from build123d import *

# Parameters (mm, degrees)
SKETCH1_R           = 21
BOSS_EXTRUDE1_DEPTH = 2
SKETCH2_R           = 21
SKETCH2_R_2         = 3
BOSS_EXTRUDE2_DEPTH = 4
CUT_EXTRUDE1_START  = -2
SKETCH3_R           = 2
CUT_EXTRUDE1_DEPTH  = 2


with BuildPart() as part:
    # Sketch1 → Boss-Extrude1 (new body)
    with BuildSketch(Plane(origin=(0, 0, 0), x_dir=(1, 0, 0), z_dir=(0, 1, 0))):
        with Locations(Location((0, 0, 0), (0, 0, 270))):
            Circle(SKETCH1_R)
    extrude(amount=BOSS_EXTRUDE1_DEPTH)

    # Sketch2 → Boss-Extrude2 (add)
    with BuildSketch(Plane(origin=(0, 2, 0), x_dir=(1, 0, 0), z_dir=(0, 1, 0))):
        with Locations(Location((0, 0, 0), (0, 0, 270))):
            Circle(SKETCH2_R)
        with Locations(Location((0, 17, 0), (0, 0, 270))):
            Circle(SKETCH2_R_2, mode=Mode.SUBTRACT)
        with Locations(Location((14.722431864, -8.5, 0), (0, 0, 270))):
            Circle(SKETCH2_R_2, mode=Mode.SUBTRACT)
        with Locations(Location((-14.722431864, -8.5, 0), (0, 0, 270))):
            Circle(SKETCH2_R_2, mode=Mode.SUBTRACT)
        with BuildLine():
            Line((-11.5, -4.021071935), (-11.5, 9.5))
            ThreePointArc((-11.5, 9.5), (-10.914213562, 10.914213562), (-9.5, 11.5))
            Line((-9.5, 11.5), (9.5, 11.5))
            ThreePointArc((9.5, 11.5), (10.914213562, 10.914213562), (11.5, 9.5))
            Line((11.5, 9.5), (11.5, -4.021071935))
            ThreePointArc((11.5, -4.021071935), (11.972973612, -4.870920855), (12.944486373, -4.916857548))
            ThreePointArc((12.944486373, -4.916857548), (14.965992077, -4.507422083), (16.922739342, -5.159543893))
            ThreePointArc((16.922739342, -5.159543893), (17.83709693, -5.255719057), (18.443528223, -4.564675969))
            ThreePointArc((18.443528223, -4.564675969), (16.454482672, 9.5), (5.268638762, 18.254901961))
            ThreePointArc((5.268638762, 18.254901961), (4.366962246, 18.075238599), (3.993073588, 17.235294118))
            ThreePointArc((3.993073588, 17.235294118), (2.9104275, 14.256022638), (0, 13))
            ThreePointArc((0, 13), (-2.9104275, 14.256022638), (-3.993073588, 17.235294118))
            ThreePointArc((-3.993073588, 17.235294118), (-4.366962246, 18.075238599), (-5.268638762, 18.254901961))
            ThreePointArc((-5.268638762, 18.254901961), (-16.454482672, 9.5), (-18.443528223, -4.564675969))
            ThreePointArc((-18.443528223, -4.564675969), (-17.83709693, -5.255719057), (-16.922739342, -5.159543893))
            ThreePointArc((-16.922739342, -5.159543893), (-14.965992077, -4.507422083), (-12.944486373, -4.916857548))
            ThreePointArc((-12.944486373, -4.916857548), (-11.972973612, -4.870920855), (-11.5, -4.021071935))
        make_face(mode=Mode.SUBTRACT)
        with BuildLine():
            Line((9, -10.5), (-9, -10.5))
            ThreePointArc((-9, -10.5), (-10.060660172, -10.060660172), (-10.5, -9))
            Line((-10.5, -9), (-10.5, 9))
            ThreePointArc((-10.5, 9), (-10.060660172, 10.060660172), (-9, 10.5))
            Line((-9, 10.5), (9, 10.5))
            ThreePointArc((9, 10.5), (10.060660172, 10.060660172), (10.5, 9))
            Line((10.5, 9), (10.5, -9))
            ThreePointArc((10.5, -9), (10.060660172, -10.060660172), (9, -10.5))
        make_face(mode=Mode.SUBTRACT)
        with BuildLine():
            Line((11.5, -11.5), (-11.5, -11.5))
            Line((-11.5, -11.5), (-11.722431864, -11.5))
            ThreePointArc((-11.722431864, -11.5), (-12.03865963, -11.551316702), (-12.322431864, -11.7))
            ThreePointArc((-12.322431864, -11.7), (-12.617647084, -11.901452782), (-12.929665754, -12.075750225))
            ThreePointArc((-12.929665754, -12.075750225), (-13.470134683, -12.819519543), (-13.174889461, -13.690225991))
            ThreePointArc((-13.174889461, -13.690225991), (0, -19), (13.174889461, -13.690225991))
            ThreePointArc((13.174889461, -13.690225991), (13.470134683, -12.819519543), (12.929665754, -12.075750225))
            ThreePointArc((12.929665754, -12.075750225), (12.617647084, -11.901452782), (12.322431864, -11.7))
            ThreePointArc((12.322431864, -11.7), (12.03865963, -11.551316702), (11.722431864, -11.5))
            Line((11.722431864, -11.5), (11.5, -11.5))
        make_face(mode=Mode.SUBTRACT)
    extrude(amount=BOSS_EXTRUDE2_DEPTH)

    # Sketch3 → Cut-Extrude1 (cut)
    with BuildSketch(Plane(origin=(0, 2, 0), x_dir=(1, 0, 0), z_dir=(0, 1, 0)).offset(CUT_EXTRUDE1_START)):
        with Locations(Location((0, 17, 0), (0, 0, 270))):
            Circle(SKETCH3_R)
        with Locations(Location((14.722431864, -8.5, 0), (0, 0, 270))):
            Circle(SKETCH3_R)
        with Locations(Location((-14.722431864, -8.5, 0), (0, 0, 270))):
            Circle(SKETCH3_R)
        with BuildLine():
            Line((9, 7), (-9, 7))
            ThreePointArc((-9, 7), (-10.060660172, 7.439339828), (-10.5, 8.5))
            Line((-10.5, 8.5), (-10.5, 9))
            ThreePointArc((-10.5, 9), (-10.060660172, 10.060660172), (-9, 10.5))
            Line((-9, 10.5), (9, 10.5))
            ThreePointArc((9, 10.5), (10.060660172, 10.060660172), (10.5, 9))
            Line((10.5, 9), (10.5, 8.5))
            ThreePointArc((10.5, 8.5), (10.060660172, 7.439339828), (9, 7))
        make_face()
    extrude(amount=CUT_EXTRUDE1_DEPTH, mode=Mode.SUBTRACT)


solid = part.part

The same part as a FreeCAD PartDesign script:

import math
import FreeCAD as App
import Part
import Sketcher
Q = App.Units.Quantity

doc = App.newDocument("Part")
body = doc.addObject("PartDesign::Body", "Body")

# Sketch on XZ plane
sketch1 = doc.addObject("Sketcher::SketchObject", "Sketch")
body.addObject(sketch1)
sketch1.AttachmentSupport = (doc.XZ_Plane, [""])
sketch1.MapMode = "FlatFace"
sketch1.addGeometry(Part.Circle(App.Vector(0, 0, 0), App.Vector(0, 0, 1), 21), False)
sketch1.addConstraint(Sketcher.Constraint("Coincident", 0, 3, -1, 1))
sketch1.addConstraint(Sketcher.Constraint("Diameter", 0, Q("42 mm")))
pad1 = doc.addObject("PartDesign::Pad", "Pad")
body.addObject(pad1)
pad1.Profile = sketch1
pad1.Length = 2
pad1.Reversed = True

# Sketch on XZ plane
sketch2 = doc.addObject("Sketcher::SketchObject", "Sketch001")
body.addObject(sketch2)
sketch2.AttachmentSupport = (doc.XZ_Plane, [""])
sketch2.MapMode = "FlatFace"
sketch2.AttachmentOffset = App.Placement(App.Vector(0, 0, -2), App.Rotation())
sketch2.addGeometry(Part.Circle(App.Vector(0, 0, 0), App.Vector(0, 0, 1), 21), False)
sketch2.addGeometry(Part.Circle(App.Vector(0, -17, 0), App.Vector(0, 0, 1), 3), False)
sketch2.addGeometry(Part.LineSegment(App.Vector(-11.5, -9.5, 0), App.Vector(-11.5, 4, 0)), False)
sketch2.addGeometry(Part.ArcOfCircle(Part.Circle(App.Vector(-12.5, 4, 0), App.Vector(0, 0, 1), 1), math.radians(0), math.radians(116)), False)
sketch2.addGeometry(Part.ArcOfCircle(Part.Circle(App.Vector(-14.7, 8.5, 0), App.Vector(0, 0, 1), 4), math.radians(-123), math.radians(-64)), False)
sketch2.addGeometry(Part.ArcOfCircle(Part.Circle(App.Vector(-17.5, 4.3, 0), App.Vector(0, 0, 1), 1), math.radians(57), math.radians(166)), False)
sketch2.addGeometry(Part.ArcOfCircle(Part.Circle(App.Vector(0, 0, 0), App.Vector(0, 0, 1), 19), math.radians(166), math.radians(254)), False)
sketch2.addGeometry(Part.ArcOfCircle(Part.Circle(App.Vector(-5, -17.3, 0), App.Vector(0, 0, 1), 1), math.radians(-106), math.radians(3)), False)
sketch2.addGeometry(Part.ArcOfCircle(Part.Circle(App.Vector(0, -17, 0), App.Vector(0, 0, 1), 4), math.radians(90), math.radians(183)), False)
sketch2.addGeometry(Part.ArcOfCircle(Part.Circle(App.Vector(0, -17, 0), App.Vector(0, 0, 1), 4), math.radians(-3), math.radians(90)), False)
sketch2.addGeometry(Part.ArcOfCircle(Part.Circle(App.Vector(5, -17.3, 0), App.Vector(0, 0, 1), 1), math.radians(177), math.radians(286)), False)
sketch2.addGeometry(Part.ArcOfCircle(Part.Circle(App.Vector(0, 0, 0), App.Vector(0, 0, 1), 19), math.radians(-74), math.radians(14)), False)
sketch2.addGeometry(Part.ArcOfCircle(Part.Circle(App.Vector(17.5, 4.3, 0), App.Vector(0, 0, 1), 1), math.radians(14), math.radians(123)), False)
sketch2.addGeometry(Part.ArcOfCircle(Part.Circle(App.Vector(14.7, 8.5, 0), App.Vector(0, 0, 1), 4), math.radians(-116), math.radians(-57)), False)
sketch2.addGeometry(Part.ArcOfCircle(Part.Circle(App.Vector(12.5, 4, 0), App.Vector(0, 0, 1), 1), math.radians(64), math.radians(180)), False)
sketch2.addGeometry(Part.LineSegment(App.Vector(11.5, 4, 0), App.Vector(11.5, -9.5, 0)), False)
sketch2.addGeometry(Part.ArcOfCircle(Part.Circle(App.Vector(9.5, -9.5, 0), App.Vector(0, 0, 1), 2), math.radians(-90), math.radians(0)), False)
sketch2.addGeometry(Part.LineSegment(App.Vector(9.5, -11.5, 0), App.Vector(-9.5, -11.5, 0)), False)
sketch2.addGeometry(Part.ArcOfCircle(Part.Circle(App.Vector(-9.5, -9.5, 0), App.Vector(0, 0, 1), 2), math.radians(-180), math.radians(-90)), False)
sketch2.addGeometry(Part.Circle(App.Vector(-14.7, 8.5, 0), App.Vector(0, 0, 1), 3), False)
sketch2.addGeometry(Part.ArcOfCircle(Part.Circle(App.Vector(9, 9, 0), App.Vector(0, 0, 1), 1.5), math.radians(0), math.radians(90)), False)
sketch2.addGeometry(Part.LineSegment(App.Vector(9, 10.5, 0), App.Vector(-9, 10.5, 0)), False)
sketch2.addGeometry(Part.ArcOfCircle(Part.Circle(App.Vector(-9, 9, 0), App.Vector(0, 0, 1), 1.5), math.radians(90), math.radians(180)), False)
sketch2.addGeometry(Part.LineSegment(App.Vector(-10.5, 9, 0), App.Vector(-10.5, -9, 0)), False)
sketch2.addGeometry(Part.ArcOfCircle(Part.Circle(App.Vector(-9, -9, 0), App.Vector(0, 0, 1), 1.5), math.radians(180), math.radians(270)), False)
sketch2.addGeometry(Part.LineSegment(App.Vector(-9, -10.5, 0), App.Vector(9, -10.5, 0)), False)
sketch2.addGeometry(Part.ArcOfCircle(Part.Circle(App.Vector(9, -9, 0), App.Vector(0, 0, 1), 1.5), math.radians(-90), math.radians(0)), False)
sketch2.addGeometry(Part.LineSegment(App.Vector(10.5, -9, 0), App.Vector(10.5, 9, 0)), False)
sketch2.addGeometry(Part.ArcOfCircle(Part.Circle(App.Vector(-11.7, 12.5, 0), App.Vector(0, 0, 1), 1), math.radians(-127), math.radians(-90)), False)
sketch2.addGeometry(Part.LineSegment(App.Vector(-11.7, 11.5, 0), App.Vector(11.7, 11.5, 0)), False)
sketch2.addGeometry(Part.ArcOfCircle(Part.Circle(App.Vector(11.7, 12.5, 0), App.Vector(0, 0, 1), 1), math.radians(-90), math.radians(-53)), False)
sketch2.addGeometry(Part.ArcOfCircle(Part.Circle(App.Vector(14.7, 8.5, 0), App.Vector(0, 0, 1), 4), math.radians(116.63), math.radians(126.87)), False)
sketch2.addGeometry(Part.ArcOfCircle(Part.Circle(App.Vector(12.5, 13, 0), App.Vector(0, 0, 1), 1), math.radians(-63), math.radians(46)), False)
sketch2.addGeometry(Part.ArcOfCircle(Part.Circle(App.Vector(0, 0, 0), App.Vector(0, 0, 1), 19), math.radians(46), math.radians(134)), False)
sketch2.addGeometry(Part.ArcOfCircle(Part.Circle(App.Vector(-12.5, 13, 0), App.Vector(0, 0, 1), 1), math.radians(134), math.radians(243)), False)
sketch2.addGeometry(Part.ArcOfCircle(Part.Circle(App.Vector(-14.7, 8.5, 0), App.Vector(0, 0, 1), 4), math.radians(53.13), math.radians(63.37)), False)
sketch2.addGeometry(Part.Circle(App.Vector(14.7, 8.5, 0), App.Vector(0, 0, 1), 3), False)
sketch2.addConstraint(Sketcher.Constraint("Tangent", 2, 2, 3, 1))
sketch2.addConstraint(Sketcher.Constraint("Tangent", 3, 2, 4, 2))
sketch2.addConstraint(Sketcher.Constraint("Tangent", 4, 1, 5, 1))
sketch2.addConstraint(Sketcher.Constraint("Tangent", 5, 2, 6, 1))
sketch2.addConstraint(Sketcher.Constraint("Tangent", 6, 2, 7, 1))
sketch2.addConstraint(Sketcher.Constraint("Tangent", 7, 2, 8, 2))
sketch2.addConstraint(Sketcher.Constraint("Tangent", 8, 1, 9, 2))
sketch2.addConstraint(Sketcher.Constraint("Tangent", 9, 1, 10, 1))
sketch2.addConstraint(Sketcher.Constraint("Tangent", 10, 2, 11, 1))
sketch2.addConstraint(Sketcher.Constraint("Tangent", 11, 2, 12, 1))
sketch2.addConstraint(Sketcher.Constraint("Tangent", 12, 2, 13, 2))
sketch2.addConstraint(Sketcher.Constraint("Tangent", 13, 1, 14, 1))
sketch2.addConstraint(Sketcher.Constraint("Tangent", 14, 2, 15, 1))
sketch2.addConstraint(Sketcher.Constraint("Tangent", 15, 2, 16, 2))
sketch2.addConstraint(Sketcher.Constraint("Tangent", 16, 1, 17, 1))
sketch2.addConstraint(Sketcher.Constraint("Tangent", 17, 2, 18, 2))
sketch2.addConstraint(Sketcher.Constraint("Tangent", 18, 1, 2, 1))
sketch2.addConstraint(Sketcher.Constraint("Tangent", 20, 2, 21, 1))
sketch2.addConstraint(Sketcher.Constraint("Tangent", 21, 2, 22, 1))
sketch2.addConstraint(Sketcher.Constraint("Tangent", 22, 2, 23, 1))
sketch2.addConstraint(Sketcher.Constraint("Tangent", 23, 2, 24, 1))
sketch2.addConstraint(Sketcher.Constraint("Tangent", 24, 2, 25, 1))
sketch2.addConstraint(Sketcher.Constraint("Tangent", 25, 2, 26, 1))
sketch2.addConstraint(Sketcher.Constraint("Tangent", 26, 2, 27, 1))
sketch2.addConstraint(Sketcher.Constraint("Tangent", 27, 2, 20, 1))
sketch2.addConstraint(Sketcher.Constraint("Tangent", 28, 2, 29, 1))
sketch2.addConstraint(Sketcher.Constraint("Tangent", 29, 2, 30, 1))
sketch2.addConstraint(Sketcher.Constraint("Tangent", 30, 2, 31, 2))
sketch2.addConstraint(Sketcher.Constraint("Tangent", 31, 1, 32, 1))
sketch2.addConstraint(Sketcher.Constraint("Tangent", 32, 2, 33, 1))
sketch2.addConstraint(Sketcher.Constraint("Tangent", 33, 2, 34, 1))
sketch2.addConstraint(Sketcher.Constraint("Tangent", 34, 2, 35, 2))
sketch2.addConstraint(Sketcher.Constraint("Tangent", 35, 1, 28, 1))
sketch2.addConstraint(Sketcher.Constraint("Vertical", 2))
sketch2.addConstraint(Sketcher.Constraint("Vertical", 15))
sketch2.addConstraint(Sketcher.Constraint("Horizontal", 17))
sketch2.addConstraint(Sketcher.Constraint("Horizontal", 21))
sketch2.addConstraint(Sketcher.Constraint("Vertical", 23))
sketch2.addConstraint(Sketcher.Constraint("Horizontal", 25))
sketch2.addConstraint(Sketcher.Constraint("Vertical", 27))
sketch2.addConstraint(Sketcher.Constraint("Horizontal", 29))
sketch2.addConstraint(Sketcher.Constraint("Coincident", 0, 3, -1, 1))
sketch2.addConstraint(Sketcher.Constraint("Coincident", 6, 3, -1, 1))
sketch2.addConstraint(Sketcher.Constraint("Coincident", 11, 3, -1, 1))
sketch2.addConstraint(Sketcher.Constraint("Coincident", 33, 3, -1, 1))
sketch2.addConstraint(Sketcher.Constraint("Coincident", 8, 3, 1, 3))
sketch2.addConstraint(Sketcher.Constraint("Coincident", 19, 3, 4, 3))
sketch2.addConstraint(Sketcher.Constraint("Coincident", 31, 3, 13, 3))
sketch2.addConstraint(Sketcher.Constraint("Coincident", 35, 3, 4, 3))
sketch2.addConstraint(Sketcher.Constraint("Coincident", 36, 3, 13, 3))
sketch2.addConstraint(Sketcher.Constraint("Equal", 3, 5))
sketch2.addConstraint(Sketcher.Constraint("Equal", 5, 7))
sketch2.addConstraint(Sketcher.Constraint("Equal", 4, 8))
sketch2.addConstraint(Sketcher.Constraint("Equal", 8, 9))
sketch2.addConstraint(Sketcher.Constraint("Equal", 7, 10))
sketch2.addConstraint(Sketcher.Constraint("Equal", 6, 11))
sketch2.addConstraint(Sketcher.Constraint("Equal", 10, 12))
sketch2.addConstraint(Sketcher.Constraint("Equal", 9, 13))
sketch2.addConstraint(Sketcher.Constraint("Equal", 12, 14))
sketch2.addConstraint(Sketcher.Constraint("Equal", 16, 18))
sketch2.addConstraint(Sketcher.Constraint("Equal", 1, 19))
sketch2.addConstraint(Sketcher.Constraint("Equal", 20, 22))
sketch2.addConstraint(Sketcher.Constraint("Equal", 22, 24))
sketch2.addConstraint(Sketcher.Constraint("Equal", 24, 26))
sketch2.addConstraint(Sketcher.Constraint("Equal", 14, 28))
sketch2.addConstraint(Sketcher.Constraint("Equal", 28, 30))
sketch2.addConstraint(Sketcher.Constraint("Equal", 13, 31))
sketch2.addConstraint(Sketcher.Constraint("Equal", 30, 32))
sketch2.addConstraint(Sketcher.Constraint("Equal", 11, 33))
sketch2.addConstraint(Sketcher.Constraint("Equal", 32, 34))
sketch2.addConstraint(Sketcher.Constraint("Equal", 31, 35))
sketch2.addConstraint(Sketcher.Constraint("Equal", 19, 36))
sketch2.addConstraint(Sketcher.Constraint("Symmetric", 20, 3, 24, 3, -1, 1))
sketch2.addConstraint(Sketcher.Constraint("Symmetric", 4, 3, 13, 3, -2))
sketch2.addConstraint(Sketcher.Constraint("PointOnObject", 1, 3, -2))
sketch2.addConstraint(Sketcher.Constraint("PointOnObject", 8, 1, -2))
sketch2.addConstraint(Sketcher.Constraint("Horizontal", 3, 3, 14, 3))
sketch2.addConstraint(Sketcher.Constraint("Equal", 25, 23))
sketch2.addConstraint(Sketcher.Constraint("Diameter", 0, Q("42 mm")))
sketch2.addConstraint(Sketcher.Constraint("Diameter", 1, Q("6 mm")))
sketch2.addConstraint(Sketcher.Constraint("Radius", 3, Q("1 mm")))
sketch2.addConstraint(Sketcher.Constraint("Radius", 4, Q("4 mm")))
sketch2.addConstraint(Sketcher.Constraint("Radius", 6, Q("19 mm")))
sketch2.addConstraint(Sketcher.Constraint("Radius", 16, Q("2 mm")))
sketch2.addConstraint(Sketcher.Constraint("Radius", 20, Q("1.5 mm")))
sketch2.addConstraint(Sketcher.Constraint("DistanceX", 17, 2, 17, 1, Q("19 mm")))
sketch2.addConstraint(Sketcher.Constraint("DistanceX", 21, 2, 21, 1, Q("18 mm")))
sketch2.addConstraint(Sketcher.Constraint("DistanceY", 1, 3, -1, 1, Q("17 mm")))
sketch2.addConstraint(Sketcher.Constraint("DistanceY", -1, 1, 4, 3, Q("8.5 mm")))
sketch2.addConstraint(Sketcher.Constraint("DistanceY", 16, 3, -1, 1, Q("9.5 mm")))
sketch2.addConstraint(Sketcher.Constraint("DistanceY", -1, 1, 28, 3, Q("12.5 mm")))
sketch2.addConstraint(Sketcher.Constraint("DistanceY", 2, 1, 2, 2, Q("13.521072 mm")))
pad2 = doc.addObject("PartDesign::Pad", "Pad001")
body.addObject(pad2)
pad2.Profile = sketch2
pad2.Length = 4
pad2.Reversed = True

# Sketch on XZ plane
sketch3 = doc.addObject("Sketcher::SketchObject", "Sketch002")
body.addObject(sketch3)
sketch3.AttachmentSupport = (doc.XZ_Plane, [""])
sketch3.MapMode = "FlatFace"
sketch3.addGeometry(Part.Circle(App.Vector(0, -17, 0), App.Vector(0, 0, 1), 2), False)
sketch3.addGeometry(Part.Circle(App.Vector(14.7, 8.5, 0), App.Vector(0, 0, 1), 2), False)
sketch3.addGeometry(Part.Circle(App.Vector(-14.7, 8.5, 0), App.Vector(0, 0, 1), 2), False)
sketch3.addGeometry(Part.LineSegment(App.Vector(-9, -7, 0), App.Vector(9, -7, 0)), False)
sketch3.addGeometry(Part.ArcOfCircle(Part.Circle(App.Vector(9, -8.5, 0), App.Vector(0, 0, 1), 1.5), math.radians(0), math.radians(90)), False)
sketch3.addGeometry(Part.LineSegment(App.Vector(10.5, -8.5, 0), App.Vector(10.5, -9, 0)), False)
sketch3.addGeometry(Part.ArcOfCircle(Part.Circle(App.Vector(9, -9, 0), App.Vector(0, 0, 1), 1.5), math.radians(-90), math.radians(0)), False)
sketch3.addGeometry(Part.LineSegment(App.Vector(9, -10.5, 0), App.Vector(-9, -10.5, 0)), False)
sketch3.addGeometry(Part.ArcOfCircle(Part.Circle(App.Vector(-9, -9, 0), App.Vector(0, 0, 1), 1.5), math.radians(180), math.radians(270)), False)
sketch3.addGeometry(Part.LineSegment(App.Vector(-10.5, -9, 0), App.Vector(-10.5, -8.5, 0)), False)
sketch3.addGeometry(Part.ArcOfCircle(Part.Circle(App.Vector(-9, -8.5, 0), App.Vector(0, 0, 1), 1.5), math.radians(90), math.radians(180)), False)
sketch3.addConstraint(Sketcher.Constraint("Tangent", 3, 2, 4, 2))
sketch3.addConstraint(Sketcher.Constraint("Tangent", 4, 1, 5, 1))
sketch3.addConstraint(Sketcher.Constraint("Tangent", 5, 2, 6, 2))
sketch3.addConstraint(Sketcher.Constraint("Tangent", 6, 1, 7, 1))
sketch3.addConstraint(Sketcher.Constraint("Tangent", 7, 2, 8, 2))
sketch3.addConstraint(Sketcher.Constraint("Tangent", 8, 1, 9, 1))
sketch3.addConstraint(Sketcher.Constraint("Tangent", 9, 2, 10, 2))
sketch3.addConstraint(Sketcher.Constraint("Tangent", 10, 1, 3, 1))
sketch3.addConstraint(Sketcher.Constraint("Horizontal", 3))
sketch3.addConstraint(Sketcher.Constraint("Vertical", 5))
sketch3.addConstraint(Sketcher.Constraint("Horizontal", 7))
sketch3.addConstraint(Sketcher.Constraint("Vertical", 9))
sketch3.addConstraint(Sketcher.Constraint("Equal", 0, 1))
sketch3.addConstraint(Sketcher.Constraint("Equal", 1, 2))
sketch3.addConstraint(Sketcher.Constraint("Equal", 4, 6))
sketch3.addConstraint(Sketcher.Constraint("Equal", 6, 8))
sketch3.addConstraint(Sketcher.Constraint("Equal", 8, 10))
sketch3.addConstraint(Sketcher.Constraint("Symmetric", 1, 3, 2, 3, -2))
sketch3.addConstraint(Sketcher.Constraint("PointOnObject", 0, 3, -2))
sketch3.addConstraint(Sketcher.Constraint("Diameter", 0, Q("4 mm")))
sketch3.addConstraint(Sketcher.Constraint("Radius", 4, Q("1.5 mm")))
sketch3.addConstraint(Sketcher.Constraint("DistanceX", 3, 1, 3, 2, Q("18 mm")))
sketch3.addConstraint(Sketcher.Constraint("DistanceY", 5, 2, 5, 1, Q("0.5 mm")))
sketch3.addConstraint(Sketcher.Constraint("DistanceY", 0, 3, -1, 1, Q("17 mm")))
sketch3.addConstraint(Sketcher.Constraint("DistanceX", -1, 1, 4, 3, Q("9 mm")))
sketch3.addConstraint(Sketcher.Constraint("DistanceY", 6, 3, -1, 1, Q("9 mm")))
sketch3.addConstraint(Sketcher.Constraint("DistanceY", 4, 3, 1, 3, Q("17 mm")))
sketch3.addConstraint(Sketcher.Constraint("DistanceX", -1, 1, 1, 3, Q("14.722432 mm")))
pocket1 = doc.addObject("PartDesign::Pocket", "Pocket")
body.addObject(pocket1)
pocket1.Profile = sketch3
pocket1.Length = 2

doc.recompute()
